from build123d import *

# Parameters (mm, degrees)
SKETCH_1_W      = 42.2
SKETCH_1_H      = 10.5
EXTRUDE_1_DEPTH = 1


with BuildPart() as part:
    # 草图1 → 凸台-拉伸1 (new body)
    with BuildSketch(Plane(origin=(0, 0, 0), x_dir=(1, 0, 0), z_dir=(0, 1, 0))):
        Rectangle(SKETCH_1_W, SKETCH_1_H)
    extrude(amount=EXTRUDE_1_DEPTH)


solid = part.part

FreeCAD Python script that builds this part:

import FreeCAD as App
import Part
import Sketcher

V = App.Vector
Q = App.Units.Quantity

doc = App.newDocument("Part")
body = doc.addObject("PartDesign::Body", "Body")

sketch1 = doc.addObject("Sketcher::SketchObject", "Sketch")
body.addObject(sketch1)
sketch1.AttachmentSupport = (doc.XZ_Plane, [""])
sketch1.MapMode = "FlatFace"
sketch1.addGeometry([
    Part.LineSegment(V(-21, -5, 0), V(-21, 5, 0)),
    Part.LineSegment(V(-21, 5, 0), V(21, 5, 0)),
    Part.LineSegment(V(21, 5, 0), V(21, -5, 0)),
    Part.LineSegment(V(21, -5, 0), V(-21, -5, 0)),
], False)
sketch1.addConstraint([
    Sketcher.Constraint("Coincident", 0, 2, 1, 1),
    Sketcher.Constraint("Coincident", 1, 2, 2, 1),
    Sketcher.Constraint("Coincident", 2, 2, 3, 1),
    Sketcher.Constraint("Coincident", 3, 2, 0, 1),
    Sketcher.Constraint("Vertical", 0),
    Sketcher.Constraint("Horizontal", 1),
    Sketcher.Constraint("Vertical", 2),
    Sketcher.Constraint("Horizontal", 3),
    Sketcher.Constraint("Symmetric", 0, 2, 2, 2, -1, 1),
    Sketcher.Constraint("DistanceX", 1, 1, 1, 2, Q("42.2 mm")),
    Sketcher.Constraint("DistanceY", 0, 1, 0, 2, Q("10.5 mm")),
])
pad1 = doc.addObject("PartDesign::Pad", "Pad")
body.addObject(pad1)
pad1.Profile = sketch1
pad1.Length = 1
pad1.Reversed = True

doc.recompute()
